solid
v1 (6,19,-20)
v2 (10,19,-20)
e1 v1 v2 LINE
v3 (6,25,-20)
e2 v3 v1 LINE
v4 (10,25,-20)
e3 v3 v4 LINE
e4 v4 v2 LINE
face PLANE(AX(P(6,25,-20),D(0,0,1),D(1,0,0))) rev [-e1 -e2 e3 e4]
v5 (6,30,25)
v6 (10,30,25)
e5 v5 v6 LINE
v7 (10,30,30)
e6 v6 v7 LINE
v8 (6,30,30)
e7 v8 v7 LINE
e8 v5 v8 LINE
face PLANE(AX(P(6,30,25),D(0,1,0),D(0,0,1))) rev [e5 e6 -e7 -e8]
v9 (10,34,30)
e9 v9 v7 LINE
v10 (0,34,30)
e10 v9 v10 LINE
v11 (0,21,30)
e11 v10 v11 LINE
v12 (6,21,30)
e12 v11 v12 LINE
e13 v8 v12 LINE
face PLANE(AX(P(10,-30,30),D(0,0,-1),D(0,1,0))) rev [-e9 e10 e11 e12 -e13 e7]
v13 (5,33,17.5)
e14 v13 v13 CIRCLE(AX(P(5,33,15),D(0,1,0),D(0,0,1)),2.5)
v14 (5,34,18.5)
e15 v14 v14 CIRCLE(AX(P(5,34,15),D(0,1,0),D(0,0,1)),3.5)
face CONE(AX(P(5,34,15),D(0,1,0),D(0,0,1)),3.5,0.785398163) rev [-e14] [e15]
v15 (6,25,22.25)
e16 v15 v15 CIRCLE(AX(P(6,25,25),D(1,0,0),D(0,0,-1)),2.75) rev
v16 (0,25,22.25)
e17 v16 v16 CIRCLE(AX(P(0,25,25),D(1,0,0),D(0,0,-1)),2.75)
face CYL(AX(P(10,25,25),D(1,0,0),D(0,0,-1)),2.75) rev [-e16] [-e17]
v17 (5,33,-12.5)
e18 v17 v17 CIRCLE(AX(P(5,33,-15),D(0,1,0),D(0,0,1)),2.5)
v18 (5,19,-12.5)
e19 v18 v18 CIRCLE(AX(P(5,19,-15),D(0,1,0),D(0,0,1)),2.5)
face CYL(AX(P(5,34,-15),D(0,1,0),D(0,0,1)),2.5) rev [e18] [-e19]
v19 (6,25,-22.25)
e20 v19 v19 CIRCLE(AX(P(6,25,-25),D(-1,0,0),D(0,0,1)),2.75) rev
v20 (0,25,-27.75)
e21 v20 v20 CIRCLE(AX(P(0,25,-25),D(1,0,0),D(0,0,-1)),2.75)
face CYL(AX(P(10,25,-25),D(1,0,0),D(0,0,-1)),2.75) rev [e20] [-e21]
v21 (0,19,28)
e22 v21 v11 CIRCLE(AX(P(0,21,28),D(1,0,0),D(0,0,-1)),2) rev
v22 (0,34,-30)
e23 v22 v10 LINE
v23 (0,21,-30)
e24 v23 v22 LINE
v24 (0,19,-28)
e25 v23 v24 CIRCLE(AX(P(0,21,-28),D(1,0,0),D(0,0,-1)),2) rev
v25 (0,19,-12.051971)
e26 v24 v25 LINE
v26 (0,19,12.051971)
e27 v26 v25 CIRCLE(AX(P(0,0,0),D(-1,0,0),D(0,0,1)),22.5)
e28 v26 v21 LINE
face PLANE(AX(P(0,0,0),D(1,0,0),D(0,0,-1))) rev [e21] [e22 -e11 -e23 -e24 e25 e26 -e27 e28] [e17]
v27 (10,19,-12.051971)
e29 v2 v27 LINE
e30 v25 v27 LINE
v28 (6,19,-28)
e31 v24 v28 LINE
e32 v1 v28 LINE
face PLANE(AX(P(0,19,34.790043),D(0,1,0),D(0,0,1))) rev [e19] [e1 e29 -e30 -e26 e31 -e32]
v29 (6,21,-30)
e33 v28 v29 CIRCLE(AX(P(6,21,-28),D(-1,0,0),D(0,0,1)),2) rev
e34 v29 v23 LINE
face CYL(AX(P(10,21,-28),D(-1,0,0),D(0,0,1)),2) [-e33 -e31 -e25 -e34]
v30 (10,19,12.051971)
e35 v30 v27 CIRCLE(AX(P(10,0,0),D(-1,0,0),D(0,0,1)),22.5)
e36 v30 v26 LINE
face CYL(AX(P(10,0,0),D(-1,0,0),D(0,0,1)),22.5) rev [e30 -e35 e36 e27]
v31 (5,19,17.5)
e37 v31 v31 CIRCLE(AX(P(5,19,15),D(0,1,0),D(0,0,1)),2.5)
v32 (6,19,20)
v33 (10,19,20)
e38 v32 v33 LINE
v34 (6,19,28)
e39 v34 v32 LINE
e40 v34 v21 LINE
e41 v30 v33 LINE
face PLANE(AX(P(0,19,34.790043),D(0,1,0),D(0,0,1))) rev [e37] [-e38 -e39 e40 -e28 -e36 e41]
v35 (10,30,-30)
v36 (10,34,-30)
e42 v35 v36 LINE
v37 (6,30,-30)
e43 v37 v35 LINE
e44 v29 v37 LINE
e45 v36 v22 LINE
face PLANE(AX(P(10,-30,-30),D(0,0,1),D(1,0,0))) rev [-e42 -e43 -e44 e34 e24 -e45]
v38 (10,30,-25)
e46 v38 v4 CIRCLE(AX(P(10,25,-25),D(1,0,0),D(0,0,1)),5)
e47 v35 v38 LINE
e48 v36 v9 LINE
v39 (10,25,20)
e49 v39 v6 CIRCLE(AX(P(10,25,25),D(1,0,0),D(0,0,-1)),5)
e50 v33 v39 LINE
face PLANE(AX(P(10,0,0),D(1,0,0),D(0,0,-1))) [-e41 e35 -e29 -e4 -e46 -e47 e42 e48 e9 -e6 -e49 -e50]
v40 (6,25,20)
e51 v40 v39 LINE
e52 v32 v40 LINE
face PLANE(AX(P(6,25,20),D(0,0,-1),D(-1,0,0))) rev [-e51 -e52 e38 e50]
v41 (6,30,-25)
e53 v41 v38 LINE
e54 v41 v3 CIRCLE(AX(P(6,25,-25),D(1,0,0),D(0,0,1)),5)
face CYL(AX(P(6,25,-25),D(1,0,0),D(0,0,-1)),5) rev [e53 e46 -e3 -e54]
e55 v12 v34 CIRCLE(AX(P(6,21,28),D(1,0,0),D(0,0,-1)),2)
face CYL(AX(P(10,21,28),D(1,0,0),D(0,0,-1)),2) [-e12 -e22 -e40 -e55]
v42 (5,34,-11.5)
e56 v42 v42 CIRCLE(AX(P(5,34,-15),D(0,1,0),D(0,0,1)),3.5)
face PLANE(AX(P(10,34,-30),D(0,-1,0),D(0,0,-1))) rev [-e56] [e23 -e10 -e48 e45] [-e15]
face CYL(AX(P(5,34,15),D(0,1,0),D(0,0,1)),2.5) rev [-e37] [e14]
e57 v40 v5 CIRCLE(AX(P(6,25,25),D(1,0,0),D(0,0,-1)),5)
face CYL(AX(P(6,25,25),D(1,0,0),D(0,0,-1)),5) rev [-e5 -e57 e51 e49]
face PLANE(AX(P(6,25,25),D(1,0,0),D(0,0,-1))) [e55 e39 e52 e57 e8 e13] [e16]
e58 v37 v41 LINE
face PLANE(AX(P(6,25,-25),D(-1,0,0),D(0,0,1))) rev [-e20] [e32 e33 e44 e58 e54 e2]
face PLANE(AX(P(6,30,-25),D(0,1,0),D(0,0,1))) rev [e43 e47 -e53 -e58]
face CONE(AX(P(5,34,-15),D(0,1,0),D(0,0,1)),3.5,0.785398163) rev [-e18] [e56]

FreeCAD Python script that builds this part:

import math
import FreeCAD as App
import Part
import Sketcher
from FreeCAD import Vector


def edges_at(feature, points):
    """Names of the edges that pass closest to the given points."""
    edges = feature.Shape.Edges
    near = lambda p: min(range(len(edges)), key=lambda i: edges[i].distToShape(Part.Vertex(*p))[0])
    return sorted({f"Edge{near(p) + 1}" for p in points})


def add_polygon(sketch, points):
    """Adds a closed chain of lines whose ends are joined by coincident constraints."""
    first, n = sketch.GeometryCount, len(points)
    for a, b in zip(points, points[1:] + points[:1]):
        sketch.addGeometry(Part.LineSegment(App.Vector(*a, 0), App.Vector(*b, 0)), False)
    for i in range(n):
        sketch.addConstraint(Sketcher.Constraint("Coincident", first + i, 2, first + (i + 1) % n, 1))

doc = App.newDocument("Part")
body = doc.addObject("PartDesign::Body", "Body")

# Sketch on YZ plane
sketch1 = body.newObject("Sketcher::SketchObject", "Sketch")
sketch1.AttachmentSupport = (doc.getObject("YZ_Plane"), [""])
sketch1.MapMode = "FlatFace"
add_polygon(sketch1, [(34, 30), (-30, 30), (-30, -30), (34, -30)])  # lines 0-3
sketch1.addConstraint(Sketcher.Constraint("Horizontal", 0))
sketch1.addConstraint(Sketcher.Constraint("Vertical", 1))
sketch1.addConstraint(Sketcher.Constraint("Horizontal", 2))
sketch1.addConstraint(Sketcher.Constraint("Vertical", 3))
sketch1.addConstraint(Sketcher.Constraint("DistanceX", 0, 2, 0, 1, 64.0))
sketch1.addConstraint(Sketcher.Constraint("DistanceY", 1, 2, 1, 1, 60.0))
sketch1.addConstraint(Sketcher.Constraint("DistanceX", 0, 2, -1, 1, 30.0))
sketch1.addConstraint(Sketcher.Constraint("DistanceY", -1, 1, 0, 2, 30.0))
pad1 = body.newObject("PartDesign::Pad", "Pad")
pad1.Profile = sketch1
pad1.Length = 10

# Sketch on YZ plane
sketch2 = body.newObject("Sketcher::SketchObject", "Sketch001")
sketch2.AttachmentSupport = (doc.getObject("YZ_Plane"), [""])
sketch2.MapMode = "FlatFace"
sketch2.addGeometry(Part.Circle(Vector(0, 0, 0), Vector(0, 0, 1), 22), False)
sketch2.addConstraint(Sketcher.Constraint("Coincident", 0, 3, -1, 1))
sketch2.addConstraint(Sketcher.Constraint("Diameter", 0, 45.0))
pocket1 = body.newObject("PartDesign::Pocket", "Pocket")
pocket1.Profile = sketch2
pocket1.Length = 10
pocket1.Reversed = True

# Sketch on YZ plane
sketch3 = body.newObject("Sketcher::SketchObject", "Sketch002")
sketch3.AttachmentSupport = (doc.getObject("YZ_Plane"), [""])
sketch3.MapMode = "FlatFace"
sketch3.AttachmentOffset = App.Placement(Vector(0, 0, 10), App.Rotation())
add_polygon(sketch3, [(19, 35), (-35, 35), (-35, -35), (19, -35)])  # lines 0-3
sketch3.addConstraint(Sketcher.Constraint("Horizontal", 0))
sketch3.addConstraint(Sketcher.Constraint("Vertical", 1))
sketch3.addConstraint(Sketcher.Constraint("Horizontal", 2))
sketch3.addConstraint(Sketcher.Constraint("Vertical", 3))
sketch3.addConstraint(Sketcher.Constraint("DistanceX", -1, 1, 2, 2, 19.0))
sketch3.addConstraint(Sketcher.Constraint("DistanceX", 0, 2, 0, 1, 53.938345))
sketch3.addConstraint(Sketcher.Constraint("DistanceY", 1, 2, 1, 1, 69.759203))
sketch3.addConstraint(Sketcher.Constraint("DistanceY", 1, 2, -1, 1, 34.96916))
pocket2 = body.newObject("PartDesign::Pocket", "Pocket001")
pocket2.Profile = sketch3
pocket2.Length = 10

# Sketch on YZ plane
sketch4 = body.newObject("Sketcher::SketchObject", "Sketch003")
sketch4.AttachmentSupport = (doc.getObject("YZ_Plane"), [""])
sketch4.MapMode = "FlatFace"
sketch4.AttachmentOffset = App.Placement(Vector(0, 0, 10), App.Rotation())
sketch4.addGeometry(Part.Circle(Vector(25, 25, 0), Vector(0, 0, 1), 2.8), False)
sketch4.addGeometry(Part.Circle(Vector(25, -25, 0), Vector(0, 0, 1), 2.8), False)
sketch4.addConstraint(Sketcher.Constraint("Equal", 0, 1))
sketch4.addConstraint(Sketcher.Constraint("Symmetric", 0, 3, 1, 3, -1))
sketch4.addConstraint(Sketcher.Constraint("Diameter", 0, 5.5))
sketch4.addConstraint(Sketcher.Constraint("DistanceX", -1, 1, 0, 3, 25.0))
sketch4.addConstraint(Sketcher.Constraint("DistanceY", -1, 1, 0, 3, 25.0))
doc.recompute()
hole = body.newObject("PartDesign::Hole", "Hole")
hole.Profile = sketch4
hole.ThreadType = "None"
hole.Diameter = 5.5
hole.DepthType = "ThroughAll"

# Sketch on XZ plane
sketch5 = body.newObject("Sketcher::SketchObject", "Sketch004")
sketch5.AttachmentSupport = (doc.getObject("XZ_Plane"), [""])
sketch5.MapMode = "FlatFace"
sketch5.AttachmentOffset = App.Placement(Vector(0, 0, -34), App.Rotation())
sketch5.addGeometry(Part.Circle(Vector(5, -15, 0), Vector(0, 0, 1), 2.5), False)
sketch5.addGeometry(Part.Circle(Vector(5, 15, 0), Vector(0, 0, 1), 2.5), False)
sketch5.addConstraint(Sketcher.Constraint("Equal", 0, 1))
sketch5.addConstraint(Sketcher.Constraint("Symmetric", 0, 3, 1, 3, -1))
sketch5.addConstraint(Sketcher.Constraint("Diameter", 0, 5.0))
sketch5.addConstraint(Sketcher.Constraint("DistanceX", -1, 1, 0, 3, 5.0))
sketch5.addConstraint(Sketcher.Constraint("DistanceY", 0, 3, -1, 1, 15.0))
doc.recompute()
hole2 = body.newObject("PartDesign::Hole", "Hole001")
hole2.Profile = sketch5
hole2.ThreadType = "None"
hole2.Diameter = 5
hole2.DepthType = "ThroughAll"
hole2.HoleCutType = "Countersink"
hole2.HoleCutDiameter = 7
hole2.HoleCutCountersinkAngle = 90
hole2.Reversed = True

# Sketch on YZ plane
sketch6 = body.newObject("Sketcher::SketchObject", "Sketch005")
sketch6.AttachmentSupport = (doc.getObject("YZ_Plane"), [""])
sketch6.MapMode = "FlatFace"
sketch6.AttachmentOffset = App.Placement(Vector(0, 0, 10), App.Rotation())
sketch6.addGeometry(Part.LineSegment(Vector(30, 25, 0), Vector(30, 30, 0)), False)
sketch6.addGeometry(Part.LineSegment(Vector(30, 30, 0), Vector(19, 30, 0)), False)
sketch6.addGeometry(Part.LineSegment(Vector(19, 30, 0), Vector(19, 20, 0)), False)
sketch6.addGeometry(Part.LineSegment(Vector(19, 20, 0), Vector(25, 20, 0)), False)
sketch6.addGeometry(Part.ArcOfCircle(Part.Circle(Vector(25, 25, 0), Vector(0, 0, 1), 5), math.radians(-90), math.radians(0)), False)
sketch6.addGeometry(Part.LineSegment(Vector(25, -20, 0), Vector(19, -20, 0)), False)
sketch6.addGeometry(Part.LineSegment(Vector(19, -20, 0), Vector(19, -30, 0)), False)
sketch6.addGeometry(Part.LineSegment(Vector(19, -30, 0), Vector(30, -30, 0)), False)
sketch6.addGeometry(Part.LineSegment(Vector(30, -30, 0), Vector(30, -25, 0)), False)
sketch6.addGeometry(Part.ArcOfCircle(Part.Circle(Vector(25, -25, 0), Vector(0, 0, 1), 5), math.radians(0), math.radians(90)), False)
sketch6.addConstraint(Sketcher.Constraint("Coincident", 0, 2, 1, 1))
sketch6.addConstraint(Sketcher.Constraint("Coincident", 1, 2, 2, 1))
sketch6.addConstraint(Sketcher.Constraint("Coincident", 2, 2, 3, 1))
sketch6.addConstraint(Sketcher.Constraint("Tangent", 3, 2, 4, 1))
sketch6.addConstraint(Sketcher.Constraint("Tangent", 4, 2, 0, 1))
sketch6.addConstraint(Sketcher.Constraint("Coincident", 5, 2, 6, 1))
sketch6.addConstraint(Sketcher.Constraint("Coincident", 6, 2, 7, 1))
sketch6.addConstraint(Sketcher.Constraint("Coincident", 7, 2, 8, 1))
sketch6.addConstraint(Sketcher.Constraint("Tangent", 8, 2, 9, 1))
sketch6.addConstraint(Sketcher.Constraint("Tangent", 9, 2, 5, 1))
sketch6.addConstraint(Sketcher.Constraint("Vertical", 0))
sketch6.addConstraint(Sketcher.Constraint("Horizontal", 1))
sketch6.addConstraint(Sketcher.Constraint("Vertical", 2))
sketch6.addConstraint(Sketcher.Constraint("Horizontal", 3))
sketch6.addConstraint(Sketcher.Constraint("Horizontal", 5))
sketch6.addConstraint(Sketcher.Constraint("Vertical", 6))
sketch6.addConstraint(Sketcher.Constraint("Horizontal", 7))
sketch6.addConstraint(Sketcher.Constraint("Vertical", 8))
sketch6.addConstraint(Sketcher.Constraint("Equal", 4, 9))
sketch6.addConstraint(Sketcher.Constraint("Symmetric", 4, 3, 9, 3, -1))
sketch6.addConstraint(Sketcher.Constraint("Symmetric", 1, 2, 6, 2, -1))
sketch6.addConstraint(Sketcher.Constraint("Radius", 4, 5.0))
sketch6.addConstraint(Sketcher.Constraint("DistanceX", 1, 2, 1, 1, 11.0))
sketch6.addConstraint(Sketcher.Constraint("DistanceY", 0, 1, 0, 2, 5.0))
sketch6.addConstraint(Sketcher.Constraint("DistanceX", -1, 1, 4, 3, 25.0))
sketch6.addConstraint(Sketcher.Constraint("DistanceY", -1, 1, 4, 3, 25.0))
pocket3 = body.newObject("PartDesign::Pocket", "Pocket002")
pocket3.Profile = sketch6
pocket3.Length = 4
doc.recompute()

fillet = body.newObject("PartDesign::Fillet", "Fillet")
fillet.Base = (pocket3, edges_at(pocket3, [(3, 19, 30), (3, 19, -30)]))
fillet.Radius = 2

doc.recompute()
